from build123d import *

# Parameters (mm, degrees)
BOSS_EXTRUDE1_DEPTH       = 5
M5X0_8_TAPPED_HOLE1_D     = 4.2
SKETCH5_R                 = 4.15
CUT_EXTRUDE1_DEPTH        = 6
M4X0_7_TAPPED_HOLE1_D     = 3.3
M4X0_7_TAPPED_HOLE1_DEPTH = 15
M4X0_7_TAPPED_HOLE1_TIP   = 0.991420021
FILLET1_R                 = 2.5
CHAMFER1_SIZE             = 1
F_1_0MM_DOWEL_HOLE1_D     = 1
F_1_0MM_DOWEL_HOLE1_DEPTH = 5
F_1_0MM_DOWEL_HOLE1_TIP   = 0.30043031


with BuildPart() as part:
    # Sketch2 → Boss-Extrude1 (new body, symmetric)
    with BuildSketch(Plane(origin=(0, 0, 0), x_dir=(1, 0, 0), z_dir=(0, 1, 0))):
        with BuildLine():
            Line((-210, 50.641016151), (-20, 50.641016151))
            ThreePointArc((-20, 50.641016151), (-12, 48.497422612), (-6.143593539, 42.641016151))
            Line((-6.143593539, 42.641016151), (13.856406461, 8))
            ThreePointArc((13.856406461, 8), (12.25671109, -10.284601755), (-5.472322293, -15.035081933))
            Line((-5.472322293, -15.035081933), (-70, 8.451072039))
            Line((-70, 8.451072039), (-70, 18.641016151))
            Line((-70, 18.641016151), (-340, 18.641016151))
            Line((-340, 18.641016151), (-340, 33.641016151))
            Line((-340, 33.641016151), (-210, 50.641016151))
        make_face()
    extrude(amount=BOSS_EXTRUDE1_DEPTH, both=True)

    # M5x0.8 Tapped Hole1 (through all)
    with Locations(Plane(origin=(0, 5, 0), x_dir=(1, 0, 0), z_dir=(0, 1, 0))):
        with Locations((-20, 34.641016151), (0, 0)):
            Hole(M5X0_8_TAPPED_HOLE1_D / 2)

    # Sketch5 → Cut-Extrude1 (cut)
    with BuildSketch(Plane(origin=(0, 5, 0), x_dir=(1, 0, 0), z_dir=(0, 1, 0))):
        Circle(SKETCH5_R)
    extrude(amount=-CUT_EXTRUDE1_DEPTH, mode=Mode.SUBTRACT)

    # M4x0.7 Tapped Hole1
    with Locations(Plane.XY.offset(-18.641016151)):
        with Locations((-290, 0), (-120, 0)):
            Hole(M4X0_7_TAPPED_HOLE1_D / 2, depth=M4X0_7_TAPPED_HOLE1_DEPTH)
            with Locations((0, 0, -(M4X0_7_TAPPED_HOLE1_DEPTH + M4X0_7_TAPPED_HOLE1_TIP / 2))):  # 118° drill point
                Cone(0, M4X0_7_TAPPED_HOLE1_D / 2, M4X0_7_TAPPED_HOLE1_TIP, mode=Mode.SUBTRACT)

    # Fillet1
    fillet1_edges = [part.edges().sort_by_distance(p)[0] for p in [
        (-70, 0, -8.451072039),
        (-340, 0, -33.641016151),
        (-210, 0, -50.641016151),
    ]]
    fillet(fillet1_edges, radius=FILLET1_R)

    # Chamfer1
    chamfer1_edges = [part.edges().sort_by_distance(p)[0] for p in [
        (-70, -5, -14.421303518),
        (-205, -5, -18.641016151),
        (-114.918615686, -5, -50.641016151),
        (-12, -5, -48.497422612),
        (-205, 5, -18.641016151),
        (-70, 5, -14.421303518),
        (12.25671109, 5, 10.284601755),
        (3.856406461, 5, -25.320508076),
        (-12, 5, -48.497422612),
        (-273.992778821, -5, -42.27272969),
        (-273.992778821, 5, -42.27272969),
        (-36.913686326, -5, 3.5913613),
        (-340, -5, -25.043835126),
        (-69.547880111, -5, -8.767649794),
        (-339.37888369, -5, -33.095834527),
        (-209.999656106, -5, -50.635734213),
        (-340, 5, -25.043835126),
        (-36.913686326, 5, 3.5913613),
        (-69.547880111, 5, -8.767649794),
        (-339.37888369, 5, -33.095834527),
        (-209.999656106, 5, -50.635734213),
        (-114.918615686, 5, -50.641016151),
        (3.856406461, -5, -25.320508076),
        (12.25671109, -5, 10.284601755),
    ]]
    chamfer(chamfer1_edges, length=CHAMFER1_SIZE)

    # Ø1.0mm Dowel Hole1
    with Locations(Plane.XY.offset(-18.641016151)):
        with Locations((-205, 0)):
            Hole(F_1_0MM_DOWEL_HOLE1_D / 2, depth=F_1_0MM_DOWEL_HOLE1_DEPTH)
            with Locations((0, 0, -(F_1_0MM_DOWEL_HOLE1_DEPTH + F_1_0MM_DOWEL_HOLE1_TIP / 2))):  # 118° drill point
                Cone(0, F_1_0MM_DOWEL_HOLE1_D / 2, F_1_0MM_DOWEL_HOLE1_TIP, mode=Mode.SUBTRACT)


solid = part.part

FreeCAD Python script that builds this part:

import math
import FreeCAD as App
import Part
import Sketcher
Q = App.Units.Quantity


def edges_at(feature, points):
    """Names of the edges that pass closest to the given points."""
    edges = feature.Shape.Edges
    near = lambda p: min(range(len(edges)), key=lambda i: edges[i].distToShape(Part.Vertex(*p))[0])
    return sorted({f"Edge{near(p) + 1}" for p in points})

doc = App.newDocument("Part")
body = doc.addObject("PartDesign::Body", "Body")

sketch1 = doc.addObject("Sketcher::SketchObject", "Sketch")
body.addObject(sketch1)
sketch1.AttachmentSupport = (doc.XZ_Plane, [""])
sketch1.MapMode = "FlatFace"
sketch1.addGeometry(Part.LineSegment(App.Vector(-20, -50.641016, 0), App.Vector(-210, -50.641016, 0)), False)
sketch1.addGeometry(Part.LineSegment(App.Vector(-210, -50.641016, 0), App.Vector(-340, -33.641016, 0)), False)
sketch1.addGeometry(Part.LineSegment(App.Vector(-340, -33.641016, 0), App.Vector(-340, -18.641016, 0)), False)
sketch1.addGeometry(Part.LineSegment(App.Vector(-340, -18.641016, 0), App.Vector(-70, -18.641016, 0)), False)
sketch1.addGeometry(Part.LineSegment(App.Vector(-70, -18.641016, 0), App.Vector(-70, -8.451072, 0)), False)
sketch1.addGeometry(Part.LineSegment(App.Vector(-70, -8.451072, 0), App.Vector(-5.472322, 15.035082, 0)), False)
sketch1.addGeometry(Part.ArcOfCircle(Part.Circle(App.Vector(0, 0, 0), App.Vector(0, 0, 1), 16), math.radians(-30), math.radians(110)), False)
sketch1.addGeometry(Part.LineSegment(App.Vector(13.856406, -8, 0), App.Vector(-6.143594, -42.641016, 0)), False)
sketch1.addGeometry(Part.ArcOfCircle(Part.Circle(App.Vector(-20, -34.641016, 0), App.Vector(0, 0, 1), 16), math.radians(-90), math.radians(-30)), False)
sketch1.addConstraint(Sketcher.Constraint("Coincident", 0, 2, 1, 1))
sketch1.addConstraint(Sketcher.Constraint("Coincident", 1, 2, 2, 1))
sketch1.addConstraint(Sketcher.Constraint("Coincident", 2, 2, 3, 1))
sketch1.addConstraint(Sketcher.Constraint("Coincident", 3, 2, 4, 1))
sketch1.addConstraint(Sketcher.Constraint("Coincident", 4, 2, 5, 1))
sketch1.addConstraint(Sketcher.Constraint("Tangent", 5, 2, 6, 2))
sketch1.addConstraint(Sketcher.Constraint("Tangent", 6, 1, 7, 1))
sketch1.addConstraint(Sketcher.Constraint("Tangent", 7, 2, 8, 2))
sketch1.addConstraint(Sketcher.Constraint("Tangent", 8, 1, 0, 1))
sketch1.addConstraint(Sketcher.Constraint("Horizontal", 0))
sketch1.addConstraint(Sketcher.Constraint("Vertical", 2))
sketch1.addConstraint(Sketcher.Constraint("Horizontal", 3))
sketch1.addConstraint(Sketcher.Constraint("Vertical", 4))
sketch1.addConstraint(Sketcher.Constraint("Coincident", 6, 3, -1, 1))
sketch1.addConstraint(Sketcher.Constraint("Equal", 6, 8))
sketch1.addConstraint(Sketcher.Constraint("Radius", 6, Q("16 mm")))
sketch1.addConstraint(Sketcher.Constraint("DistanceX", 0, 2, 0, 1, Q("190 mm")))
sketch1.addConstraint(Sketcher.Constraint("DistanceX", 3, 1, 3, 2, Q("270 mm")))
sketch1.addConstraint(Sketcher.Constraint("DistanceY", 2, 1, 2, 2, Q("15 mm")))
sketch1.addConstraint(Sketcher.Constraint("Angle", 5, Q("20 deg")))
sketch1.addConstraint(Sketcher.Constraint("Angle", 7, Q("-120 deg")))
sketch1.addConstraint(Sketcher.Constraint("Distance", 7, Q("40 mm")))
sketch1.addConstraint(Sketcher.Constraint("DistanceX", 1, 2, -1, 1, Q("340 mm")))
sketch1.addConstraint(Sketcher.Constraint("DistanceY", 0, 2, 1, 2, Q("17 mm")))
pad1 = doc.addObject("PartDesign::Pad", "Pad")
body.addObject(pad1)
pad1.Profile = sketch1
pad1.Length = 10
pad1.Midplane = True

sketch2 = doc.addObject("Sketcher::SketchObject", "Sketch001")
body.addObject(sketch2)
sketch2.AttachmentSupport = (doc.XZ_Plane, [""])
sketch2.MapMode = "FlatFace"
sketch2.AttachmentOffset = App.Placement(App.Vector(0, 0, -5), App.Rotation())
sketch2.addGeometry(Part.Circle(App.Vector(-20, -34.641016, 0), App.Vector(0, 0, 1), 2.1), False)
sketch2.addGeometry(Part.Circle(App.Vector(0, 0, 0), App.Vector(0, 0, 1), 2.1), False)
sketch2.addConstraint(Sketcher.Constraint("Coincident", 1, 3, -1, 1))
sketch2.addConstraint(Sketcher.Constraint("Equal", 0, 1))
sketch2.addConstraint(Sketcher.Constraint("Diameter", 0, Q("4.2 mm")))
sketch2.addConstraint(Sketcher.Constraint("DistanceX", 0, 3, -1, 1, Q("20 mm")))
sketch2.addConstraint(Sketcher.Constraint("DistanceY", 0, 3, -1, 1, Q("34.641016 mm")))
doc.recompute()
hole = doc.addObject("PartDesign::Hole", "Hole")
body.addObject(hole)
hole.Profile = sketch2
hole.ThreadType = "None"
hole.Diameter = 4.2
hole.DepthType = "ThroughAll"
hole.Reversed = True

sketch3 = doc.addObject("Sketcher::SketchObject", "Sketch002")
body.addObject(sketch3)
sketch3.AttachmentSupport = (doc.XZ_Plane, [""])
sketch3.MapMode = "FlatFace"
sketch3.AttachmentOffset = App.Placement(App.Vector(0, 0, -5), App.Rotation())
sketch3.addGeometry(Part.Circle(App.Vector(0, 0, 0), App.Vector(0, 0, 1), 4.15), False)
sketch3.addConstraint(Sketcher.Constraint("Coincident", 0, 3, -1, 1))
sketch3.addConstraint(Sketcher.Constraint("Diameter", 0, Q("8.3 mm")))
pocket1 = doc.addObject("PartDesign::Pocket", "Pocket")
body.addObject(pocket1)
pocket1.Profile = sketch3
pocket1.Length = 6
pocket1.Reversed = True

sketch4 = doc.addObject("Sketcher::SketchObject", "Sketch003")
body.addObject(sketch4)
sketch4.AttachmentSupport = (doc.XY_Plane, [""])
sketch4.MapMode = "FlatFace"
sketch4.AttachmentOffset = App.Placement(App.Vector(0, 0, -18.641016), App.Rotation())
sketch4.addGeometry(Part.Circle(App.Vector(-290, 0, 0), App.Vector(0, 0, 1), 1.65), False)
sketch4.addGeometry(Part.Circle(App.Vector(-120, 0, 0), App.Vector(0, 0, 1), 1.65), False)
sketch4.addConstraint(Sketcher.Constraint("Equal", 0, 1))
sketch4.addConstraint(Sketcher.Constraint("PointOnObject", 0, 3, -1))
sketch4.addConstraint(Sketcher.Constraint("PointOnObject", 1, 3, -1))
sketch4.addConstraint(Sketcher.Constraint("Diameter", 0, Q("3.3 mm")))
sketch4.addConstraint(Sketcher.Constraint("DistanceX", 0, 3, -1, 1, Q("290 mm")))
sketch4.addConstraint(Sketcher.Constraint("DistanceX", 1, 3, -1, 1, Q("120 mm")))
doc.recompute()
hole2 = doc.addObject("PartDesign::Hole", "Hole001")
body.addObject(hole2)
hole2.Profile = sketch4
hole2.ThreadType = "None"
hole2.Diameter = 3.3
hole2.DepthType = "Dimension"
hole2.Depth = 15
hole2.DrillPoint = "Angled"
hole2.DrillPointAngle = 118
doc.recompute()

fillet = doc.addObject("PartDesign::Fillet", "Fillet")
body.addObject(fillet)
fillet.Base = (hole2, edges_at(hole2, [(-70, 0, -8.451), (-340, 0, -33.641), (-210, 0, -50.641)]))
fillet.Radius = 2.5
doc.recompute()

chamfer = doc.addObject("PartDesign::Chamfer", "Chamfer")
body.addObject(chamfer)
chamfer.Base = (fillet, edges_at(fillet, [
    (-70, -5, -14.421),
    (-205, -5, -18.641),
    (-114.919, -5, -50.641),
    (-12, -5, -48.497),
    (-205, 5, -18.641),
    (-70, 5, -14.421),
    (12.257, 5, 10.285),
    (3.856, 5, -25.321),
    (-12, 5, -48.497),
    (-273.993, -5, -42.273),
    (-273.993, 5, -42.273),
    (-36.914, -5, 3.591),
    (-340, -5, -25.044),
    (-69.548, -5, -8.768),
    (-339.379, -5, -33.096),
    (-210, -5, -50.636),
    (-340, 5, -25.044),
    (-36.914, 5, 3.591),
    (-69.548, 5, -8.768),
    (-339.379, 5, -33.096),
    (-210, 5, -50.636),
    (-114.919, 5, -50.641),
    (3.856, -5, -25.321),
    (12.257, -5, 10.285),
]))
chamfer.Size = 1

sketch5 = doc.addObject("Sketcher::SketchObject", "Sketch004")
body.addObject(sketch5)
sketch5.AttachmentSupport = (doc.XY_Plane, [""])
sketch5.MapMode = "FlatFace"
sketch5.AttachmentOffset = App.Placement(App.Vector(0, 0, -18.641016), App.Rotation())
sketch5.addGeometry(Part.Circle(App.Vector(-205, 0, 0), App.Vector(0, 0, 1), 0.5), False)
sketch5.addConstraint(Sketcher.Constraint("PointOnObject", 0, 3, -1))
sketch5.addConstraint(Sketcher.Constraint("Diameter", 0, Q("1 mm")))
sketch5.addConstraint(Sketcher.Constraint("DistanceX", 0, 3, -1, 1, Q("205 mm")))
doc.recompute()
hole3 = doc.addObject("PartDesign::Hole", "Hole002")
body.addObject(hole3)
hole3.Profile = sketch5
hole3.ThreadType = "None"
hole3.Diameter = 1
hole3.DepthType = "Dimension"
hole3.Depth = 5
hole3.DrillPoint = "Angled"
hole3.DrillPointAngle = 118

doc.recompute()
